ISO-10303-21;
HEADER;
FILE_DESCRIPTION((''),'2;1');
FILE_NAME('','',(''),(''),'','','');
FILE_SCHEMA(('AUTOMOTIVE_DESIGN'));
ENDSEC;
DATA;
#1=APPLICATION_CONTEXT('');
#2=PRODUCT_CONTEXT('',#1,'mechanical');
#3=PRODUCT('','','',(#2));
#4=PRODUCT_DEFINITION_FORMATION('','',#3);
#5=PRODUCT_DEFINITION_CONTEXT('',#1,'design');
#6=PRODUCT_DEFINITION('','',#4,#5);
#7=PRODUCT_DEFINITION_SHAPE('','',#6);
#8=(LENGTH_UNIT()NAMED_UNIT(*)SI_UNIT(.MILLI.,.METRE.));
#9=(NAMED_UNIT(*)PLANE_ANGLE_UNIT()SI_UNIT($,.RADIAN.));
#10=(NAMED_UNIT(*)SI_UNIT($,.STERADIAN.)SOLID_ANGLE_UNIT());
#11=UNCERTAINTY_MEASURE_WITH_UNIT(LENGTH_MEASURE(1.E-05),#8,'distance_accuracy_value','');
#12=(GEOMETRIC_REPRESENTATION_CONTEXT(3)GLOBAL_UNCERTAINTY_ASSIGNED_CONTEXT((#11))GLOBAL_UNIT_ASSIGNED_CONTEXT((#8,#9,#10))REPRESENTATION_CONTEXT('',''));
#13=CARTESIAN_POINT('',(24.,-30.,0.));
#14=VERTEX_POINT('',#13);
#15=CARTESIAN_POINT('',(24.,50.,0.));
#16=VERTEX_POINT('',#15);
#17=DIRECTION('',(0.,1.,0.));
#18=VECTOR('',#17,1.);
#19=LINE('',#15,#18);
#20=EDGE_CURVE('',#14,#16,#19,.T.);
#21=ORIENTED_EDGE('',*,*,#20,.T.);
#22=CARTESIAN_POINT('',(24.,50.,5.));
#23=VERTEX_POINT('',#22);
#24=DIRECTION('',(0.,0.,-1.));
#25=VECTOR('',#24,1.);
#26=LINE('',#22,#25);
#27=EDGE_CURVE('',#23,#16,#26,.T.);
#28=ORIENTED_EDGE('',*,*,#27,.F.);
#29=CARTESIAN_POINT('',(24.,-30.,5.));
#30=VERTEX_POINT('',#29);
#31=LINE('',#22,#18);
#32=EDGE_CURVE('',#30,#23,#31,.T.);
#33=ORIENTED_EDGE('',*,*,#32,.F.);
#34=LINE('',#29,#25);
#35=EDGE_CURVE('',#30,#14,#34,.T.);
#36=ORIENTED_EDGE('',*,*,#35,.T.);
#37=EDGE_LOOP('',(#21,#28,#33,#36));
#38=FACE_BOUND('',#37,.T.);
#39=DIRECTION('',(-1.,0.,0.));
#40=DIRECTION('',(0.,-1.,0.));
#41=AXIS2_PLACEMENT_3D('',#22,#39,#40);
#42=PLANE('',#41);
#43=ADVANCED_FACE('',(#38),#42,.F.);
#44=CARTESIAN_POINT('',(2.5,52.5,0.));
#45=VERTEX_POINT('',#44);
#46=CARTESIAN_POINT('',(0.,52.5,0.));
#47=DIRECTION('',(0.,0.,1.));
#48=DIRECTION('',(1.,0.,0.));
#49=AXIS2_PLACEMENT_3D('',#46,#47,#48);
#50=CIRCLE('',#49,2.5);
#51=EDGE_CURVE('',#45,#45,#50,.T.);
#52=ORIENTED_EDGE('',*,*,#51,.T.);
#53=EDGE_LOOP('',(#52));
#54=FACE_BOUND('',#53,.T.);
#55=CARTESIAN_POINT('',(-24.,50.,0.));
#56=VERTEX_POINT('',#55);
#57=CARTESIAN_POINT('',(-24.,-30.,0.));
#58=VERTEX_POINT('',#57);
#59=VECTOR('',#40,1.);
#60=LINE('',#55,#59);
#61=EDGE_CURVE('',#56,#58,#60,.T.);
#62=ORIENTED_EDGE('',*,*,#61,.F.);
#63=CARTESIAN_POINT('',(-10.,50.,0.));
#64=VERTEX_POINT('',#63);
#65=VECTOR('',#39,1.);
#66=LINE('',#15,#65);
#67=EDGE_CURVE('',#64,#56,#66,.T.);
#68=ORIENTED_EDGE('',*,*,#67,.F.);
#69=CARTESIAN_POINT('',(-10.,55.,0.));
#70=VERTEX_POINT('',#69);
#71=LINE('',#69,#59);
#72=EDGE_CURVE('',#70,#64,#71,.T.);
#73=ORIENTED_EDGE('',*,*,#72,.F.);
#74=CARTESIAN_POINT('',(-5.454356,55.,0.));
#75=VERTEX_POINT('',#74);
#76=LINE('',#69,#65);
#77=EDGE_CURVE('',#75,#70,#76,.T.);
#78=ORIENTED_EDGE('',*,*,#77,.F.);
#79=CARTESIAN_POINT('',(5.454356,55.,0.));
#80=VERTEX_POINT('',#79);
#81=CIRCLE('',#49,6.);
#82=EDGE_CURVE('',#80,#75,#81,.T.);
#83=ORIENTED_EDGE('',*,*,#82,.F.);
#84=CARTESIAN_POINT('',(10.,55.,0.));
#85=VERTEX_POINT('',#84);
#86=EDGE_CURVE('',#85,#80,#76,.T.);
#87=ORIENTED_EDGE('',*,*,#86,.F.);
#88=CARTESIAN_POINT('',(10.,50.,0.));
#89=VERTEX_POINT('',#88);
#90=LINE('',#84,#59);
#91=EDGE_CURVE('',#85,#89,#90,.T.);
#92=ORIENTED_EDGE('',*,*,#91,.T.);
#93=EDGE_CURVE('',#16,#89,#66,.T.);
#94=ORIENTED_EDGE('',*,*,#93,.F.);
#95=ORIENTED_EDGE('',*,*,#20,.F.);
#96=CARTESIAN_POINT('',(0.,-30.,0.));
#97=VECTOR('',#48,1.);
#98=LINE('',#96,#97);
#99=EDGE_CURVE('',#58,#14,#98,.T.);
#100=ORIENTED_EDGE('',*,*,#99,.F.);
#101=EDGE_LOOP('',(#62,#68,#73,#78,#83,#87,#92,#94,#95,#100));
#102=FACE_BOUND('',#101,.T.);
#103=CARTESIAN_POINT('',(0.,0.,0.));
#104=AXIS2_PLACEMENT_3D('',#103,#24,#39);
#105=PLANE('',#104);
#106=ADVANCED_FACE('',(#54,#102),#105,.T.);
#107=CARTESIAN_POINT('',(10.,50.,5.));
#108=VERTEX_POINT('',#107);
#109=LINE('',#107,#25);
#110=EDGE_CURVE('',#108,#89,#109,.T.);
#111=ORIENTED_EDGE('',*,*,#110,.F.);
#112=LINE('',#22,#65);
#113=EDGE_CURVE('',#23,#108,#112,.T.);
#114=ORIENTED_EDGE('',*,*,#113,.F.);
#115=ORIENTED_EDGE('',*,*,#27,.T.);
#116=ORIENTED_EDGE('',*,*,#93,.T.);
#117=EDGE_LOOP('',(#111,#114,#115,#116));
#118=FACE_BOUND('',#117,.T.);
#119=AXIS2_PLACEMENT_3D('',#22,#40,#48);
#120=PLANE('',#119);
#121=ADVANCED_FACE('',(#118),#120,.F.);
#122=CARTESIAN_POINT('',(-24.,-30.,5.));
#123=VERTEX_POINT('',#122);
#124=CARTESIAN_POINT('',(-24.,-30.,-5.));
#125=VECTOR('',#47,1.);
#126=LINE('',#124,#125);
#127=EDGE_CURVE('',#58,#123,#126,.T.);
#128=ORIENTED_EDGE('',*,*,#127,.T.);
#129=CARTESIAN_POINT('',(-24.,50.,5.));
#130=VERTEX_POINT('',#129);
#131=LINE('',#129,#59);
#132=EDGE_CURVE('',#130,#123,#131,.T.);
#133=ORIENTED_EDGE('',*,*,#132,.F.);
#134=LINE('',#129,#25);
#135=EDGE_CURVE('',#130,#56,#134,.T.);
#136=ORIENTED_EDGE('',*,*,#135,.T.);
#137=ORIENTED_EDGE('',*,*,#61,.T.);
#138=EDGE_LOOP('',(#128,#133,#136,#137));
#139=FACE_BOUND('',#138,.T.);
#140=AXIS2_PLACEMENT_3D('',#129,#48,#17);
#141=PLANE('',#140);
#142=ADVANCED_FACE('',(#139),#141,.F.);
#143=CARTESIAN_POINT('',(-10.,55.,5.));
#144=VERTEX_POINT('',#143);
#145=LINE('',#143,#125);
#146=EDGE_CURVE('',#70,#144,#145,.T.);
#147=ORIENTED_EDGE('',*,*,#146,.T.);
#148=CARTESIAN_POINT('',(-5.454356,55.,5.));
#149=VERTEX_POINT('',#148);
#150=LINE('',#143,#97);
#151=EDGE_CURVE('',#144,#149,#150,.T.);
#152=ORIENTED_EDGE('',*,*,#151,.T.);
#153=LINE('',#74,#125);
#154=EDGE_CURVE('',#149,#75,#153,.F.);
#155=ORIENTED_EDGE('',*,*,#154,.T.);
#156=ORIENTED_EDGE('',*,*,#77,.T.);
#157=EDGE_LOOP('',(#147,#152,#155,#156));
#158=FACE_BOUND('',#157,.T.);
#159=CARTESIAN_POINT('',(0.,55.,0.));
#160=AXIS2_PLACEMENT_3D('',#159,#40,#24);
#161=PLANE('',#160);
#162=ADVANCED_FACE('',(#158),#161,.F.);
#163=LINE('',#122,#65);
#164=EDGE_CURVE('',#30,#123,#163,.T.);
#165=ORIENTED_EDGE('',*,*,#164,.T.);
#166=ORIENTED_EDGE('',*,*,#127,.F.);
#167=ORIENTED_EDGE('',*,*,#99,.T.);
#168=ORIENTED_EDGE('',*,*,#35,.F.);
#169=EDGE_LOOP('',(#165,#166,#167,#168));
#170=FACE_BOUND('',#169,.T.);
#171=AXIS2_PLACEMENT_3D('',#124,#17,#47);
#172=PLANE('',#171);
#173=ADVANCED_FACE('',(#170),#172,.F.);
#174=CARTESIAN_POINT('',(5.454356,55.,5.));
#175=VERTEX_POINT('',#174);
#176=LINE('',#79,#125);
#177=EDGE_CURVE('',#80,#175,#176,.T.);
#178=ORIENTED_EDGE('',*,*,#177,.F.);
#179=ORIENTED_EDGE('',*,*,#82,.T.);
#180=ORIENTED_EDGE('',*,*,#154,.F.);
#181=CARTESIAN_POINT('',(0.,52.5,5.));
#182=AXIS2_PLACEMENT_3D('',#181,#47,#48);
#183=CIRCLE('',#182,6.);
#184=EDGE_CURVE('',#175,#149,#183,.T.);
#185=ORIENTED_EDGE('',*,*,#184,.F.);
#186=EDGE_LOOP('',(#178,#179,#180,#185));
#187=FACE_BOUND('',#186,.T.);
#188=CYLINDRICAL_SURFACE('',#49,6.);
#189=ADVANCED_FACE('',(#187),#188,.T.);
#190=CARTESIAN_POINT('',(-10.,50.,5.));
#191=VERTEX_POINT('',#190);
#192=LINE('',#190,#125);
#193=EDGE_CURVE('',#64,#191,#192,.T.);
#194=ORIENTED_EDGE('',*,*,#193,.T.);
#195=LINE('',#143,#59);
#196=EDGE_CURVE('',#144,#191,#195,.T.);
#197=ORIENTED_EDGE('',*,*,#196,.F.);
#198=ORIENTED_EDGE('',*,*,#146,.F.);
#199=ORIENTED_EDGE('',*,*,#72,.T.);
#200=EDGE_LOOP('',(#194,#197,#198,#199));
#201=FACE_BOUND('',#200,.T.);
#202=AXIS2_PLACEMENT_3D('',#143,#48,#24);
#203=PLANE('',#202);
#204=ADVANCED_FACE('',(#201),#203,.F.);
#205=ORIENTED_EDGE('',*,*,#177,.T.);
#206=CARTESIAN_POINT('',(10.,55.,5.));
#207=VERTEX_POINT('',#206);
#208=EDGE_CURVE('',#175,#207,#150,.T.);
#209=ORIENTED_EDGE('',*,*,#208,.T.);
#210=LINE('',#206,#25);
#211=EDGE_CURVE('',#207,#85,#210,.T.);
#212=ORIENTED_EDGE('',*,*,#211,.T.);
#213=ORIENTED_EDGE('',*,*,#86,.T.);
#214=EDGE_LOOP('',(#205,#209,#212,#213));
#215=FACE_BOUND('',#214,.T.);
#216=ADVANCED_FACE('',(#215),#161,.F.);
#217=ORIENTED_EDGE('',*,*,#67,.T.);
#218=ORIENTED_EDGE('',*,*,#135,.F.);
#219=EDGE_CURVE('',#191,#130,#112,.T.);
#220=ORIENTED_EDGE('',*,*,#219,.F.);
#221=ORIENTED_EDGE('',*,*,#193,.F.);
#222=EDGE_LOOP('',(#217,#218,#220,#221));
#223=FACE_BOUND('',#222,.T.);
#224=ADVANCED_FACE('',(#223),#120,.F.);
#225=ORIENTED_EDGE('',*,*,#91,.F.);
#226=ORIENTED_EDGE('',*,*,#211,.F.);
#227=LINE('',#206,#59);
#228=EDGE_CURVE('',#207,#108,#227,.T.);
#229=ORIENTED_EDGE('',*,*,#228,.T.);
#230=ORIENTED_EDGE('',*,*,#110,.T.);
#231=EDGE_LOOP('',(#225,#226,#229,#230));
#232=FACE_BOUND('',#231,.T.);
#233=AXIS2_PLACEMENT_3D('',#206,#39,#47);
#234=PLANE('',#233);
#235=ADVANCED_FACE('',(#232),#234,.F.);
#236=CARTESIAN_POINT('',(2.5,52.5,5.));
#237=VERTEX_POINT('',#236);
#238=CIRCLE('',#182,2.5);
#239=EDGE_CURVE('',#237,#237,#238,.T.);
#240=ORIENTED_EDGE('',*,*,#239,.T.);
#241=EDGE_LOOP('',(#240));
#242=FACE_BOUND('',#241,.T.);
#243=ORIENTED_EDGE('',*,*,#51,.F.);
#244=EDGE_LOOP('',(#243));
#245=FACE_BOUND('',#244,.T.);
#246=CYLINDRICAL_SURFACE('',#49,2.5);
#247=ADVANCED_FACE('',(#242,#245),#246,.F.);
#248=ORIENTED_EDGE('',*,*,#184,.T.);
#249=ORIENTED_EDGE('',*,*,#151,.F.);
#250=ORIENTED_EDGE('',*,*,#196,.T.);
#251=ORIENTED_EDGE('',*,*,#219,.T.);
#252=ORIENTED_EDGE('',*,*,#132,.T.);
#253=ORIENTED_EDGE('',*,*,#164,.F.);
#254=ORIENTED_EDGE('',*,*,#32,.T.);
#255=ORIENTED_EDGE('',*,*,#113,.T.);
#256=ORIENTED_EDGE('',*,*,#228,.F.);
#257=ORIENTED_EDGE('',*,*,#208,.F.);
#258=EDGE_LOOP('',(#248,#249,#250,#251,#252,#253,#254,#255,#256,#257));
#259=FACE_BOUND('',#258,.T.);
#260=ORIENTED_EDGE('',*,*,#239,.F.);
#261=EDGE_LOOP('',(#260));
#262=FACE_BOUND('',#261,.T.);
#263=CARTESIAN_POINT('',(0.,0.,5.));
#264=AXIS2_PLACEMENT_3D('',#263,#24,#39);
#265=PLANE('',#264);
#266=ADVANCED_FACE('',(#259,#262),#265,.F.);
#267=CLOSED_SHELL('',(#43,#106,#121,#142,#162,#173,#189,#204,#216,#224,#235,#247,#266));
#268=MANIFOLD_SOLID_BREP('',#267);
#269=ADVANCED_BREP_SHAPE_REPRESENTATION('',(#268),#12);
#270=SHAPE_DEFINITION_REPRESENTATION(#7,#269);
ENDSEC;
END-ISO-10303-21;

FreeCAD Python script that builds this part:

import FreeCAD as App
import Part
import Sketcher
from FreeCAD import Vector
Q = App.Units.Quantity


def add_polygon(sketch, points):
    """Adds a closed chain of lines whose ends are joined by coincident constraints."""
    first, n = sketch.GeometryCount, len(points)
    for a, b in zip(points, points[1:] + points[:1]):
        sketch.addGeometry(Part.LineSegment(App.Vector(*a, 0), App.Vector(*b, 0)), False)
    for i in range(n):
        sketch.addConstraint(Sketcher.Constraint("Coincident", first + i, 2, first + (i + 1) % n, 1))

doc = App.newDocument("Part")
params = doc.addObject("Spreadsheet::Sheet", "Params")
for row, (alias, value) in enumerate([
    ("sketch1_width", "48 mm"),
    ("sketch1_height", "100 mm"),
    ("pad1_length", "5 mm"),
    ("sketch2_width", "20 mm"),
    ("sketch2_height", "5 mm"),
    ("pad2_length", "5 mm"),
    ("sketch3_diameter", "12 mm"),
    ("pad3_length", "5 mm"),
    ("sketch4_diameter", "5 mm"),
    ("pocket1_length", "5 mm"),
    ("pocket2_length", "10 mm"),
], start=1):
    params.set(f"A{row}", alias)
    params.set(f"B{row}", "=" + value)
    params.setAlias(f"B{row}", alias)

body = doc.addObject("PartDesign::Body", "Body")

sketch1 = doc.addObject("Sketcher::SketchObject", "Sketch")
body.addObject(sketch1)
sketch1.AttachmentSupport = (doc.XY_Plane, [""])
sketch1.MapMode = "FlatFace"
add_polygon(sketch1, [(-24, 50), (-24, -50), (24, -50), (24, 50)])
sketch1.addConstraint([
    Sketcher.Constraint("Vertical", 0),
    Sketcher.Constraint("Horizontal", 1),
    Sketcher.Constraint("Vertical", 2),
    Sketcher.Constraint("Horizontal", 3),
    Sketcher.Constraint("Symmetric", 0, 2, 2, 2, -1, 1),
    Sketcher.Constraint("DistanceX", 1, 1, 1, 2, Q("48 mm")),
    Sketcher.Constraint("DistanceY", 0, 2, 0, 1, Q("100 mm")),
])
sketch1.setExpression("Constraints[9]", "Params.sketch1_width")
sketch1.setExpression("Constraints[10]", "Params.sketch1_height")
pad1 = doc.addObject("PartDesign::Pad", "Pad")
body.addObject(pad1)
pad1.Profile = sketch1
pad1.setExpression("Length", "Params.pad1_length")

sketch2 = doc.addObject("Sketcher::SketchObject", "Sketch001")
body.addObject(sketch2)
sketch2.AttachmentSupport = (doc.XZ_Plane, [""])
sketch2.MapMode = "FlatFace"
sketch2.AttachmentOffset = App.Placement(Vector(0, 0, -50), App.Rotation())
add_polygon(sketch2, [(-10, 0), (-10, 5), (10, 5), (10, 0)])
sketch2.addConstraint([
    Sketcher.Constraint("Vertical", 0),
    Sketcher.Constraint("Horizontal", 1),
    Sketcher.Constraint("Vertical", 2),
    Sketcher.Constraint("Horizontal", 3),
    Sketcher.Constraint("Symmetric", 2, 2, 3, 2, -1, 1),
    Sketcher.Constraint("DistanceX", 1, 1, 1, 2, Q("20 mm")),
    Sketcher.Constraint("DistanceY", 0, 1, 0, 2, Q("5 mm")),
])
sketch2.setExpression("Constraints[9]", "Params.sketch2_width")
sketch2.setExpression("Constraints[10]", "Params.sketch2_height")
pad2 = doc.addObject("PartDesign::Pad", "Pad001")
body.addObject(pad2)
pad2.Profile = sketch2
pad2.setExpression("Length", "Params.pad2_length")
pad2.Reversed = True
doc.recompute()

mirrored = doc.addObject("PartDesign::Mirrored", "Mirrored")
body.addObject(mirrored)
mirrored.Originals = [pad2]
mirrored.MirrorPlane = (doc.XZ_Plane, [""])
body.Tip = mirrored

sketch3 = doc.addObject("Sketcher::SketchObject", "Sketch002")
body.addObject(sketch3)
sketch3.AttachmentSupport = (doc.XY_Plane, [""])
sketch3.MapMode = "FlatFace"
sketch3.AttachmentOffset = App.Placement(Vector(0, 0, 5), App.Rotation())
sketch3.addGeometry(Part.Circle(Vector(0, 52.5, 0), Vector(0, 0, 1), 6), False)
sketch3.addConstraint([
    Sketcher.Constraint("PointOnObject", 0, 3, -2),
    Sketcher.Constraint("Diameter", 0, Q("12 mm")),
    Sketcher.Constraint("DistanceY", -1, 1, 0, 3, Q("52.5 mm")),
])
sketch3.setExpression("Constraints[1]", "Params.sketch3_diameter")
pad3 = doc.addObject("PartDesign::Pad", "Pad002")
body.addObject(pad3)
pad3.Profile = sketch3
pad3.setExpression("Length", "Params.pad3_length")
pad3.Reversed = True

sketch4 = doc.addObject("Sketcher::SketchObject", "Sketch003")
body.addObject(sketch4)
sketch4.AttachmentSupport = (doc.XY_Plane, [""])
sketch4.MapMode = "FlatFace"
sketch4.AttachmentOffset = App.Placement(Vector(0, 0, 5), App.Rotation())
sketch4.addGeometry(Part.Circle(Vector(0, 52.5, 0), Vector(0, 0, 1), 2.5), False)
sketch4.addConstraint([
    Sketcher.Constraint("PointOnObject", 0, 3, -2),
    Sketcher.Constraint("Diameter", 0, Q("5 mm")),
    Sketcher.Constraint("DistanceY", -1, 1, 0, 3, Q("52.5 mm")),
])
sketch4.setExpression("Constraints[1]", "Params.sketch4_diameter")
pocket1 = doc.addObject("PartDesign::Pocket", "Pocket")
body.addObject(pocket1)
pocket1.Profile = sketch4
pocket1.setExpression("Length", "Params.pocket1_length")
doc.recompute()

mirrored2 = doc.addObject("PartDesign::Mirrored", "Mirrored001")
body.addObject(mirrored2)
mirrored2.Originals = [pad3, pocket1]
mirrored2.MirrorPlane = (doc.XZ_Plane, [""])
body.Tip = mirrored2

sketch5 = doc.addObject("Sketcher::SketchObject", "Sketch004")
body.addObject(sketch5)
sketch5.AttachmentSupport = (doc.XY_Plane, [""])
sketch5.MapMode = "FlatFace"
sketch5.AttachmentOffset = App.Placement(Vector(0, 0, 5), App.Rotation())
add_polygon(sketch5, [(-24, -30), (-24, -58.820784), (29.859094, -58.820784), (29.859094, -30)])
sketch5.addConstraint([
    Sketcher.Constraint("Vertical", 0),
    Sketcher.Constraint("Horizontal", 1),
    Sketcher.Constraint("Vertical", 2),
    Sketcher.Constraint("Horizontal", 3),
    Sketcher.Constraint("DistanceX", 0, 2, -1, 1, Q("24 mm")),
    Sketcher.Constraint("DistanceY", 2, 2, -1, 1, Q("30 mm")),
    Sketcher.Constraint("DistanceX", 1, 1, 1, 2, Q("53.859094 mm")),
    Sketcher.Constraint("DistanceY", 0, 2, 0, 1, Q("28.820784 mm")),
])
pocket2 = doc.addObject("PartDesign::Pocket", "Pocket001")
body.addObject(pocket2)
pocket2.Profile = sketch5
pocket2.setExpression("Length", "Params.pocket2_length")

doc.recompute()
